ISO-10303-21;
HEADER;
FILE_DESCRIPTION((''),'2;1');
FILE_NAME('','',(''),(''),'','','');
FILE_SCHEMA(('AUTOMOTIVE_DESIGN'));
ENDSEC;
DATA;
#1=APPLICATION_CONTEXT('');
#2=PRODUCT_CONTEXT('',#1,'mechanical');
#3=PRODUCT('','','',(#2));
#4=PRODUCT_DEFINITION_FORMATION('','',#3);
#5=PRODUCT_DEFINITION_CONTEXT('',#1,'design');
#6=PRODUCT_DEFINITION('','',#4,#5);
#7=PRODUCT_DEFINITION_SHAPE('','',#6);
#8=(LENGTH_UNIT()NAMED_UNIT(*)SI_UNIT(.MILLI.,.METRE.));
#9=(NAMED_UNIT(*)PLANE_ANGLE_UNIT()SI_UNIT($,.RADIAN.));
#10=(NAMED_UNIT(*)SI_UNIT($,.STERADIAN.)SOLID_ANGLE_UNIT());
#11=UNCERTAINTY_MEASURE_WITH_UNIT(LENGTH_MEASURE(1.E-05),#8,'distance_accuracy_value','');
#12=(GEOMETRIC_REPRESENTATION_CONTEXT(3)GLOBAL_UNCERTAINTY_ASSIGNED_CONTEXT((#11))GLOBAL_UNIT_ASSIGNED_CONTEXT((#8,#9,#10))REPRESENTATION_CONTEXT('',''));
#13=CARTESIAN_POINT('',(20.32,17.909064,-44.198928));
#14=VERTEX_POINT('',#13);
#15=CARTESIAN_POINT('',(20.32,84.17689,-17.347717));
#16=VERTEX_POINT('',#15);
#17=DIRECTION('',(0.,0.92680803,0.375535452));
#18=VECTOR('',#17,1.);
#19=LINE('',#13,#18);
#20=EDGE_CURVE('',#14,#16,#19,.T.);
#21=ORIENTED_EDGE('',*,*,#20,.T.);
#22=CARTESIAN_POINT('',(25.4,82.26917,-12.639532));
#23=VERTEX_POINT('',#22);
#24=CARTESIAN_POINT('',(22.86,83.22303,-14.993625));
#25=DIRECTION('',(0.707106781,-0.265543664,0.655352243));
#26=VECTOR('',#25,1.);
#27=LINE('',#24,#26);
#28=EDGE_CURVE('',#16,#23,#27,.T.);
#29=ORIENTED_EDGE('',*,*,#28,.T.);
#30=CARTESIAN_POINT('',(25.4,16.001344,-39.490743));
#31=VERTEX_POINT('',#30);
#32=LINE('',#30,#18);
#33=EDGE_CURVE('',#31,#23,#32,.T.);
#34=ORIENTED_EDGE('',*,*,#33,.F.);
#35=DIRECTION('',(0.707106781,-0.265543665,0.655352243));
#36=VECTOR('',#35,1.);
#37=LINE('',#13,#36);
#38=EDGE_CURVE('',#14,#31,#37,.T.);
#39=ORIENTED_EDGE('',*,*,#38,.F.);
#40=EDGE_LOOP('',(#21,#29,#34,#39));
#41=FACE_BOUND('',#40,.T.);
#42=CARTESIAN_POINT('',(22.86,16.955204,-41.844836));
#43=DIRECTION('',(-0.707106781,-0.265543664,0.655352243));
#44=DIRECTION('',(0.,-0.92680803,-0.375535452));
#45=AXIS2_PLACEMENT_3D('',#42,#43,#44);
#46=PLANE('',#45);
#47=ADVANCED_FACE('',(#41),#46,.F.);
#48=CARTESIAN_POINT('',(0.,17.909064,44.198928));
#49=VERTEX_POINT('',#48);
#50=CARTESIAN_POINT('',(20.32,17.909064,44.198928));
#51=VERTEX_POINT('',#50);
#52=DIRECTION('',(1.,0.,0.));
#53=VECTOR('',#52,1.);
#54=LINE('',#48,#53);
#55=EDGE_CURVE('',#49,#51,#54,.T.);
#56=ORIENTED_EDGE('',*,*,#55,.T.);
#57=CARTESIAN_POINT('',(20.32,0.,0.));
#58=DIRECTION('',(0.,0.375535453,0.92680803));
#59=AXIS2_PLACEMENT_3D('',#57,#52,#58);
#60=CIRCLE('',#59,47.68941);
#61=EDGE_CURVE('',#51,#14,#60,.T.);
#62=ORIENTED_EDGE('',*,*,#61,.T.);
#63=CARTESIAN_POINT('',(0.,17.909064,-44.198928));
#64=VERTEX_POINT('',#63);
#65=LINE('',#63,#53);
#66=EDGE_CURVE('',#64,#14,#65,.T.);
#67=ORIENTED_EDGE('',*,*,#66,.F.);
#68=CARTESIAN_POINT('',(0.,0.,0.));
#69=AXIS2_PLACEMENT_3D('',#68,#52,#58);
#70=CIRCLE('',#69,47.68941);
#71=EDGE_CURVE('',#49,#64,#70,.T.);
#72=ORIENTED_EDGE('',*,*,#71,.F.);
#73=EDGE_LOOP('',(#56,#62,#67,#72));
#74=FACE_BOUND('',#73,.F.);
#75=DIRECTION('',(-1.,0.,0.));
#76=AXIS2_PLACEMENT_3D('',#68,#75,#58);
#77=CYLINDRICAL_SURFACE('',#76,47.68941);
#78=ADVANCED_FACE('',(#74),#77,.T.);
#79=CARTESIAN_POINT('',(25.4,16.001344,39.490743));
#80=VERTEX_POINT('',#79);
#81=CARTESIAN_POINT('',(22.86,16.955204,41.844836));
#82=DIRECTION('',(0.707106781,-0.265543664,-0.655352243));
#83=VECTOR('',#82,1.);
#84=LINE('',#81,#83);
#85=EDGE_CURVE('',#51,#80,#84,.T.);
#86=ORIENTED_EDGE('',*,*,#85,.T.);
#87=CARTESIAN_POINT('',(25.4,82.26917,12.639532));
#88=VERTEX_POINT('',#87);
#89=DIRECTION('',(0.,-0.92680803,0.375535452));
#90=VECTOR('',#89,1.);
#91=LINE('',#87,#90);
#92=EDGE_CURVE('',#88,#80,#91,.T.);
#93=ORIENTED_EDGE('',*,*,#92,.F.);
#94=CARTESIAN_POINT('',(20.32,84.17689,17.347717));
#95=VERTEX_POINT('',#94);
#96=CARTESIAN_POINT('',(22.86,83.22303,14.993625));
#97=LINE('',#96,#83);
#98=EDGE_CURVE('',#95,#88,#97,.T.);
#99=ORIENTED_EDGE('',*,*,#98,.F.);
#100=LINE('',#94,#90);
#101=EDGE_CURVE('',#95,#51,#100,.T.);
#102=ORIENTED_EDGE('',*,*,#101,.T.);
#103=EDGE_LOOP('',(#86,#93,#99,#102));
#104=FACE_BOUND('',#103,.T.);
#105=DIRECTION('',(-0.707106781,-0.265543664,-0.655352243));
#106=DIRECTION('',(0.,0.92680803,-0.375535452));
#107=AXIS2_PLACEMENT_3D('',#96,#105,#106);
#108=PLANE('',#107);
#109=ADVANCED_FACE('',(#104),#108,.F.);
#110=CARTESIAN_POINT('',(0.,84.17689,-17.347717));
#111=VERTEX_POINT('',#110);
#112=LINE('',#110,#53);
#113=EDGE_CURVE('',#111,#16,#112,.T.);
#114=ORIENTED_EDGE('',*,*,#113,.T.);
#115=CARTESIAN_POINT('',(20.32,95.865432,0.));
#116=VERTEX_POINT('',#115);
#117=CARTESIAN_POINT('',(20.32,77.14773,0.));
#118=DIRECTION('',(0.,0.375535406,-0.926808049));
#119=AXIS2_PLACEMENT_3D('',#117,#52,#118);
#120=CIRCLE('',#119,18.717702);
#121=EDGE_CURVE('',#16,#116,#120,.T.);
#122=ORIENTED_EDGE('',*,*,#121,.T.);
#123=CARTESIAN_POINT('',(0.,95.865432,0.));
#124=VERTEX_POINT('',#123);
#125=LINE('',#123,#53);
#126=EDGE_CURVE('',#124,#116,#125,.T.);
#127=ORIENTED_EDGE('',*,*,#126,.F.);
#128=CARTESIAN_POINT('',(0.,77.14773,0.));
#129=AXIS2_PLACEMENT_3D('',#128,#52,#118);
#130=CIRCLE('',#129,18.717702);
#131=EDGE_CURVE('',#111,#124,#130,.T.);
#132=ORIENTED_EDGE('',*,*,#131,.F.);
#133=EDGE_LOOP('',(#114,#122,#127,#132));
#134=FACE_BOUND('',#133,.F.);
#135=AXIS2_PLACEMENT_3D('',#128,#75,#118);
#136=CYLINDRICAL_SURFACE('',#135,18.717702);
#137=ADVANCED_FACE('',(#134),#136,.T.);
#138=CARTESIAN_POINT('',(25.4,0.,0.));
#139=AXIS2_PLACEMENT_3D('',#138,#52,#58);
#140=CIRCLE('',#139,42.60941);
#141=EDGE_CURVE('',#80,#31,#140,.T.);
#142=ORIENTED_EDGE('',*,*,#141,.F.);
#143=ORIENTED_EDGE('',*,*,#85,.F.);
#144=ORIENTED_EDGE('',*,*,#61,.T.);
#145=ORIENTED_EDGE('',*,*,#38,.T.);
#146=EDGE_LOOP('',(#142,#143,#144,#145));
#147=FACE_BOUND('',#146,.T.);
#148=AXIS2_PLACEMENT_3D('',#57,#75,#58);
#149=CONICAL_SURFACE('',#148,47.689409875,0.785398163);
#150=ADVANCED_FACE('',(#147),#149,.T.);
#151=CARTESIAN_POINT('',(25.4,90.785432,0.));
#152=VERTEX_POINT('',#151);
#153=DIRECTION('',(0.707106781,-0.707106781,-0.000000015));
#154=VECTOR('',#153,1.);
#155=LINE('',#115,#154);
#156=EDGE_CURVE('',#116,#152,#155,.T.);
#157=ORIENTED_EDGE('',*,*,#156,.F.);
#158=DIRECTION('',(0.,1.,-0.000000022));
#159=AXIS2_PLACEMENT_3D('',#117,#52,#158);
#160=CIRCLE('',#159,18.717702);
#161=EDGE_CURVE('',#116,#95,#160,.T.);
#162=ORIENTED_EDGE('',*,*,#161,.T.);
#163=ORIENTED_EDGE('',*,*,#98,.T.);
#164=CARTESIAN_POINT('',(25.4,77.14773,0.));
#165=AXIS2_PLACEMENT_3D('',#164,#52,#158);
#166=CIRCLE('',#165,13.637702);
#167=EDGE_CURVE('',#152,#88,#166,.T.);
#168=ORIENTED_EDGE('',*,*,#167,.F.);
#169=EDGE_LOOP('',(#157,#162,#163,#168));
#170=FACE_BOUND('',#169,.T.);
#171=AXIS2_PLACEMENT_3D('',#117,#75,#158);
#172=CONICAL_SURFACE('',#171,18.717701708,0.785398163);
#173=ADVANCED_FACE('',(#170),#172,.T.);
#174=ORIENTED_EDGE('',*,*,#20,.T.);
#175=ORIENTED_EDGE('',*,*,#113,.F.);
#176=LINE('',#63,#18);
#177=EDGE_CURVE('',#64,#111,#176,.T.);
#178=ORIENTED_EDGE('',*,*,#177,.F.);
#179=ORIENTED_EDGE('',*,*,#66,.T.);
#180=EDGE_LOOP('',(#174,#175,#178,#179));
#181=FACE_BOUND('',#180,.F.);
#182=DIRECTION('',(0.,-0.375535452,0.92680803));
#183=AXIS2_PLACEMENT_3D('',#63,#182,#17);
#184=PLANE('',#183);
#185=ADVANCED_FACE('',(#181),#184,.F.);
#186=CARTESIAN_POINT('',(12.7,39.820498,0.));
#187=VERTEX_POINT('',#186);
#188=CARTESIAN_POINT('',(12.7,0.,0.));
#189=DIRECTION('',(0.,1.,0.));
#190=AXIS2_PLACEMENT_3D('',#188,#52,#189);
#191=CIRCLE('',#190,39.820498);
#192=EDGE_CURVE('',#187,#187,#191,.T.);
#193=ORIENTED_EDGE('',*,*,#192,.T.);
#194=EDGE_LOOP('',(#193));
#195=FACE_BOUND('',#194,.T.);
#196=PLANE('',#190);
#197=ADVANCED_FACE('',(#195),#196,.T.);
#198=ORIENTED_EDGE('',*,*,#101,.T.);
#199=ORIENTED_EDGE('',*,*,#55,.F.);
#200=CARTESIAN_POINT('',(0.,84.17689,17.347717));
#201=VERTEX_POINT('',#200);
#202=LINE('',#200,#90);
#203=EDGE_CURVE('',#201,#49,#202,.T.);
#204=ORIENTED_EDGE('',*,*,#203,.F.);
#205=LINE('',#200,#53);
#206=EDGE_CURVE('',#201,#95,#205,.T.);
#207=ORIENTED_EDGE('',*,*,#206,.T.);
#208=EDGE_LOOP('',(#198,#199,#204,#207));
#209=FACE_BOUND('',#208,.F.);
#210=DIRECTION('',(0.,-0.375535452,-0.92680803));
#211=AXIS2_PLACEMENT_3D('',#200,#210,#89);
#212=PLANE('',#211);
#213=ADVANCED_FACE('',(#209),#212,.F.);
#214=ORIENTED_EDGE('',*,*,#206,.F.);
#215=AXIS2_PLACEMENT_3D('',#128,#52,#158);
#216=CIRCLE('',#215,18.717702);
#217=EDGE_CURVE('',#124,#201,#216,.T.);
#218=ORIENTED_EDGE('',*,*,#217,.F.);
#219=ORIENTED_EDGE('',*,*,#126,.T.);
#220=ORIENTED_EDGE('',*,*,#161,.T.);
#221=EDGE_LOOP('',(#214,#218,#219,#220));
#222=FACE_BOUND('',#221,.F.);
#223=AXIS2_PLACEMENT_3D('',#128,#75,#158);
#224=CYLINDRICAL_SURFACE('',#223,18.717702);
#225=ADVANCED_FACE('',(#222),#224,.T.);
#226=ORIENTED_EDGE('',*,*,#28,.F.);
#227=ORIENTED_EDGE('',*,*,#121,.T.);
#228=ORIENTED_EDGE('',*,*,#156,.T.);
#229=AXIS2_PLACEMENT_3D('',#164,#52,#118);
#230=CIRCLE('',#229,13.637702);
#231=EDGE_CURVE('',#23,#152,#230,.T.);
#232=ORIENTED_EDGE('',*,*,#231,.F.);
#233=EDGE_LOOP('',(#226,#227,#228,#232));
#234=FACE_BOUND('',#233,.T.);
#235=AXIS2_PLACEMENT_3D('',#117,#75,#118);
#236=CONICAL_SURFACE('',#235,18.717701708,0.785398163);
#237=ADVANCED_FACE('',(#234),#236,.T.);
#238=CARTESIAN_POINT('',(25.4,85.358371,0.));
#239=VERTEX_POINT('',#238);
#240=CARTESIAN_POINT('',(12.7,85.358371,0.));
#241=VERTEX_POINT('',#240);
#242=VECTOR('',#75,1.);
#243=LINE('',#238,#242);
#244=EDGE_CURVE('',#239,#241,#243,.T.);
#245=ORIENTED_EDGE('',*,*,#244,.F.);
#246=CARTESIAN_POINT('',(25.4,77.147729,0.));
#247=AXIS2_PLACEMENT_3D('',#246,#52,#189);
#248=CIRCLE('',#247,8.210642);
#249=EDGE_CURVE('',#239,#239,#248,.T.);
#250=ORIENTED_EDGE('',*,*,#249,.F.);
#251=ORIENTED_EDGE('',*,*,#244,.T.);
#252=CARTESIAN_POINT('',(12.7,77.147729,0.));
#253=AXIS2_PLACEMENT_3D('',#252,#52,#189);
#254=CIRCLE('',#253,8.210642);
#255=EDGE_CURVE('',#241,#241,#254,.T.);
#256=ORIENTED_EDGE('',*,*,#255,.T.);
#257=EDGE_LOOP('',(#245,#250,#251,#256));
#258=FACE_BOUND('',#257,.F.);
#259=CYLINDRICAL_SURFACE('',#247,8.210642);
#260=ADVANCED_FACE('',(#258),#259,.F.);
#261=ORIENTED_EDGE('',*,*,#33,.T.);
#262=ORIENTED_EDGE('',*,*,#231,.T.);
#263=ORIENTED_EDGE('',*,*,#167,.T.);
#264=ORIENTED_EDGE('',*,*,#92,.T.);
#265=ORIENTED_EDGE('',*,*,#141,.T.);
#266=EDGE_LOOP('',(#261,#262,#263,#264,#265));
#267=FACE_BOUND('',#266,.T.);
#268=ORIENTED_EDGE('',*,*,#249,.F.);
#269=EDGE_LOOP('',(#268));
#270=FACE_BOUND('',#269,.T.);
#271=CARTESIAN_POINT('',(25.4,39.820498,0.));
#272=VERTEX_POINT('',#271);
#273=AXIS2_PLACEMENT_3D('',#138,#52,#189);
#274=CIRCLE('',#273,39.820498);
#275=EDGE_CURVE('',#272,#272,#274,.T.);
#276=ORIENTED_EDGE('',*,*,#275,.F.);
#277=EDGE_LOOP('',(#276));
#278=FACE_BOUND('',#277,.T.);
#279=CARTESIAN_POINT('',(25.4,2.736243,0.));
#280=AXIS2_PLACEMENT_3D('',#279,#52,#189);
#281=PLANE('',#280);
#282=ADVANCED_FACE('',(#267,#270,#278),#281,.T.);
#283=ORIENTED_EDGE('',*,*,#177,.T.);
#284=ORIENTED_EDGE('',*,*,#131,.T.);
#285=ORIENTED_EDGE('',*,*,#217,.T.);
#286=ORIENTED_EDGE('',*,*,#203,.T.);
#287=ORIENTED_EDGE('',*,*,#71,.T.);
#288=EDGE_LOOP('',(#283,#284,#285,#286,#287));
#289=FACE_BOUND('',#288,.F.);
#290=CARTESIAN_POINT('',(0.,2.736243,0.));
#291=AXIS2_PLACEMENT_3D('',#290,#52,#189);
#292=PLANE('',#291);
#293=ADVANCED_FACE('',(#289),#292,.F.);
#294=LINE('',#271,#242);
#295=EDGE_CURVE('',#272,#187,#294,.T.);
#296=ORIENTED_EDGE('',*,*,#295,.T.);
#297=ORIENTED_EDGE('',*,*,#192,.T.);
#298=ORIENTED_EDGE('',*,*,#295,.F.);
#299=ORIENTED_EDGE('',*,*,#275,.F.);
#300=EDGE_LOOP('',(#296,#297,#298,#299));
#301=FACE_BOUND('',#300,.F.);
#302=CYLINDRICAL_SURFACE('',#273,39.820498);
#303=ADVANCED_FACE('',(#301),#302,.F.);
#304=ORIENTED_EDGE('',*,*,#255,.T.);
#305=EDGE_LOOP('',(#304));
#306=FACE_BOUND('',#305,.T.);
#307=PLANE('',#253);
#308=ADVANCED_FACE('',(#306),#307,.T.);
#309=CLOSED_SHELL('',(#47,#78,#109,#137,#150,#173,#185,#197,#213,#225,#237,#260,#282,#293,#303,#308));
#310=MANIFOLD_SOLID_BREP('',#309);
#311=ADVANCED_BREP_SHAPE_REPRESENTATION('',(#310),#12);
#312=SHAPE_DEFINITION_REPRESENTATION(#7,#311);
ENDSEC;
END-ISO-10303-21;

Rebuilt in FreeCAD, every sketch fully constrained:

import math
import FreeCAD as App
import Part
import Sketcher
from FreeCAD import Vector
Q = App.Units.Quantity


def edges_at(feature, points):
    """Names of the edges that pass closest to the given points."""
    edges = feature.Shape.Edges
    near = lambda p: min(range(len(edges)), key=lambda i: edges[i].distToShape(Part.Vertex(*p))[0])
    return sorted({f"Edge{near(p) + 1}" for p in points})

doc = App.newDocument("Part")
body = doc.addObject("PartDesign::Body", "Body")

sketch1 = body.newObject("Sketcher::SketchObject", "Sketch")
sketch1.AttachmentSupport = (doc.getObject("YZ_Plane"), [""])
sketch1.MapMode = "FlatFace"
sketch1.addGeometry([
    Part.ArcOfCircle(Part.Circle(Vector(0, 0, 0), Vector(0, 0, 1), 48), math.radians(68), math.radians(292)),
    Part.LineSegment(Vector(18, -44, 0), Vector(84, -17, 0)),
    Part.ArcOfCircle(Part.Circle(Vector(77, 0, 0), Vector(0, 0, 1), 19), math.radians(-68), math.radians(0)),
    Part.ArcOfCircle(Part.Circle(Vector(77, 0, 0), Vector(0, 0, 1), 19), math.radians(0), math.radians(68)),
    Part.LineSegment(Vector(84, 17, 0), Vector(18, 44, 0)),
], False)
sketch1.addConstraint([
    Sketcher.Constraint("Tangent", 0, 2, 1, 1),
    Sketcher.Constraint("Tangent", 1, 2, 2, 1),
    Sketcher.Constraint("Tangent", 2, 2, 3, 1),
    Sketcher.Constraint("Tangent", 3, 2, 4, 1),
    Sketcher.Constraint("Tangent", 4, 2, 0, 1),
    Sketcher.Constraint("Coincident", 0, 3, -1, 1),
    Sketcher.Constraint("Equal", 2, 3),
    Sketcher.Constraint("PointOnObject", 2, 3, -1),
    Sketcher.Constraint("PointOnObject", 2, 2, -1),
    Sketcher.Constraint("Radius", 2, Q("18.717702 mm")),
    Sketcher.Constraint("Radius", 0, Q("47.68941 mm")),
    Sketcher.Constraint("DistanceX", -1, 1, 2, 3, Q("77.14773 mm")),
])
pad1 = body.newObject("PartDesign::Pad", "Pad")
pad1.Profile = sketch1
pad1.Length = Q("1 in")

sketch2 = body.newObject("Sketcher::SketchObject", "Sketch001")
sketch2.AttachmentSupport = (doc.getObject("YZ_Plane"), [""])
sketch2.MapMode = "FlatFace"
sketch2.AttachmentOffset = App.Placement(Vector(0, 0, 1 * 25.4), App.Rotation())
sketch2.addGeometry(Part.Circle(Vector(0, 0, 0), Vector(0, 0, 1), 40), False)
sketch2.addConstraint([
    Sketcher.Constraint("Coincident", 0, 3, -1, 1),
    Sketcher.Constraint("Diameter", 0, Q("79.640996 mm")),
])
pocket1 = body.newObject("PartDesign::Pocket", "Pocket")
pocket1.Profile = sketch2
pocket1.Length = Q("0.5 in")

sketch3 = body.newObject("Sketcher::SketchObject", "Sketch002")
sketch3.AttachmentSupport = (doc.getObject("YZ_Plane"), [""])
sketch3.MapMode = "FlatFace"
sketch3.AttachmentOffset = App.Placement(Vector(0, 0, 1 * 25.4), App.Rotation())
sketch3.addGeometry(Part.Circle(Vector(77, 0, 0), Vector(0, 0, 1), 8), False)
sketch3.addConstraint([
    Sketcher.Constraint("PointOnObject", 0, 3, -1),
    Sketcher.Constraint("Diameter", 0, Q("16.421284 mm")),
    Sketcher.Constraint("DistanceX", -1, 1, 0, 3, Q("77.147729 mm")),
])
pocket2 = body.newObject("PartDesign::Pocket", "Pocket001")
pocket2.Profile = sketch3
pocket2.Length = Q("0.5 in")
doc.recompute()

chamfer = body.newObject("PartDesign::Chamfer", "Chamfer")
chamfer.Base = (pocket2, edges_at(pocket2, [(25.4, 51.043, 30.773)]))
chamfer.Size = Q("0.2 in")

doc.recompute()
